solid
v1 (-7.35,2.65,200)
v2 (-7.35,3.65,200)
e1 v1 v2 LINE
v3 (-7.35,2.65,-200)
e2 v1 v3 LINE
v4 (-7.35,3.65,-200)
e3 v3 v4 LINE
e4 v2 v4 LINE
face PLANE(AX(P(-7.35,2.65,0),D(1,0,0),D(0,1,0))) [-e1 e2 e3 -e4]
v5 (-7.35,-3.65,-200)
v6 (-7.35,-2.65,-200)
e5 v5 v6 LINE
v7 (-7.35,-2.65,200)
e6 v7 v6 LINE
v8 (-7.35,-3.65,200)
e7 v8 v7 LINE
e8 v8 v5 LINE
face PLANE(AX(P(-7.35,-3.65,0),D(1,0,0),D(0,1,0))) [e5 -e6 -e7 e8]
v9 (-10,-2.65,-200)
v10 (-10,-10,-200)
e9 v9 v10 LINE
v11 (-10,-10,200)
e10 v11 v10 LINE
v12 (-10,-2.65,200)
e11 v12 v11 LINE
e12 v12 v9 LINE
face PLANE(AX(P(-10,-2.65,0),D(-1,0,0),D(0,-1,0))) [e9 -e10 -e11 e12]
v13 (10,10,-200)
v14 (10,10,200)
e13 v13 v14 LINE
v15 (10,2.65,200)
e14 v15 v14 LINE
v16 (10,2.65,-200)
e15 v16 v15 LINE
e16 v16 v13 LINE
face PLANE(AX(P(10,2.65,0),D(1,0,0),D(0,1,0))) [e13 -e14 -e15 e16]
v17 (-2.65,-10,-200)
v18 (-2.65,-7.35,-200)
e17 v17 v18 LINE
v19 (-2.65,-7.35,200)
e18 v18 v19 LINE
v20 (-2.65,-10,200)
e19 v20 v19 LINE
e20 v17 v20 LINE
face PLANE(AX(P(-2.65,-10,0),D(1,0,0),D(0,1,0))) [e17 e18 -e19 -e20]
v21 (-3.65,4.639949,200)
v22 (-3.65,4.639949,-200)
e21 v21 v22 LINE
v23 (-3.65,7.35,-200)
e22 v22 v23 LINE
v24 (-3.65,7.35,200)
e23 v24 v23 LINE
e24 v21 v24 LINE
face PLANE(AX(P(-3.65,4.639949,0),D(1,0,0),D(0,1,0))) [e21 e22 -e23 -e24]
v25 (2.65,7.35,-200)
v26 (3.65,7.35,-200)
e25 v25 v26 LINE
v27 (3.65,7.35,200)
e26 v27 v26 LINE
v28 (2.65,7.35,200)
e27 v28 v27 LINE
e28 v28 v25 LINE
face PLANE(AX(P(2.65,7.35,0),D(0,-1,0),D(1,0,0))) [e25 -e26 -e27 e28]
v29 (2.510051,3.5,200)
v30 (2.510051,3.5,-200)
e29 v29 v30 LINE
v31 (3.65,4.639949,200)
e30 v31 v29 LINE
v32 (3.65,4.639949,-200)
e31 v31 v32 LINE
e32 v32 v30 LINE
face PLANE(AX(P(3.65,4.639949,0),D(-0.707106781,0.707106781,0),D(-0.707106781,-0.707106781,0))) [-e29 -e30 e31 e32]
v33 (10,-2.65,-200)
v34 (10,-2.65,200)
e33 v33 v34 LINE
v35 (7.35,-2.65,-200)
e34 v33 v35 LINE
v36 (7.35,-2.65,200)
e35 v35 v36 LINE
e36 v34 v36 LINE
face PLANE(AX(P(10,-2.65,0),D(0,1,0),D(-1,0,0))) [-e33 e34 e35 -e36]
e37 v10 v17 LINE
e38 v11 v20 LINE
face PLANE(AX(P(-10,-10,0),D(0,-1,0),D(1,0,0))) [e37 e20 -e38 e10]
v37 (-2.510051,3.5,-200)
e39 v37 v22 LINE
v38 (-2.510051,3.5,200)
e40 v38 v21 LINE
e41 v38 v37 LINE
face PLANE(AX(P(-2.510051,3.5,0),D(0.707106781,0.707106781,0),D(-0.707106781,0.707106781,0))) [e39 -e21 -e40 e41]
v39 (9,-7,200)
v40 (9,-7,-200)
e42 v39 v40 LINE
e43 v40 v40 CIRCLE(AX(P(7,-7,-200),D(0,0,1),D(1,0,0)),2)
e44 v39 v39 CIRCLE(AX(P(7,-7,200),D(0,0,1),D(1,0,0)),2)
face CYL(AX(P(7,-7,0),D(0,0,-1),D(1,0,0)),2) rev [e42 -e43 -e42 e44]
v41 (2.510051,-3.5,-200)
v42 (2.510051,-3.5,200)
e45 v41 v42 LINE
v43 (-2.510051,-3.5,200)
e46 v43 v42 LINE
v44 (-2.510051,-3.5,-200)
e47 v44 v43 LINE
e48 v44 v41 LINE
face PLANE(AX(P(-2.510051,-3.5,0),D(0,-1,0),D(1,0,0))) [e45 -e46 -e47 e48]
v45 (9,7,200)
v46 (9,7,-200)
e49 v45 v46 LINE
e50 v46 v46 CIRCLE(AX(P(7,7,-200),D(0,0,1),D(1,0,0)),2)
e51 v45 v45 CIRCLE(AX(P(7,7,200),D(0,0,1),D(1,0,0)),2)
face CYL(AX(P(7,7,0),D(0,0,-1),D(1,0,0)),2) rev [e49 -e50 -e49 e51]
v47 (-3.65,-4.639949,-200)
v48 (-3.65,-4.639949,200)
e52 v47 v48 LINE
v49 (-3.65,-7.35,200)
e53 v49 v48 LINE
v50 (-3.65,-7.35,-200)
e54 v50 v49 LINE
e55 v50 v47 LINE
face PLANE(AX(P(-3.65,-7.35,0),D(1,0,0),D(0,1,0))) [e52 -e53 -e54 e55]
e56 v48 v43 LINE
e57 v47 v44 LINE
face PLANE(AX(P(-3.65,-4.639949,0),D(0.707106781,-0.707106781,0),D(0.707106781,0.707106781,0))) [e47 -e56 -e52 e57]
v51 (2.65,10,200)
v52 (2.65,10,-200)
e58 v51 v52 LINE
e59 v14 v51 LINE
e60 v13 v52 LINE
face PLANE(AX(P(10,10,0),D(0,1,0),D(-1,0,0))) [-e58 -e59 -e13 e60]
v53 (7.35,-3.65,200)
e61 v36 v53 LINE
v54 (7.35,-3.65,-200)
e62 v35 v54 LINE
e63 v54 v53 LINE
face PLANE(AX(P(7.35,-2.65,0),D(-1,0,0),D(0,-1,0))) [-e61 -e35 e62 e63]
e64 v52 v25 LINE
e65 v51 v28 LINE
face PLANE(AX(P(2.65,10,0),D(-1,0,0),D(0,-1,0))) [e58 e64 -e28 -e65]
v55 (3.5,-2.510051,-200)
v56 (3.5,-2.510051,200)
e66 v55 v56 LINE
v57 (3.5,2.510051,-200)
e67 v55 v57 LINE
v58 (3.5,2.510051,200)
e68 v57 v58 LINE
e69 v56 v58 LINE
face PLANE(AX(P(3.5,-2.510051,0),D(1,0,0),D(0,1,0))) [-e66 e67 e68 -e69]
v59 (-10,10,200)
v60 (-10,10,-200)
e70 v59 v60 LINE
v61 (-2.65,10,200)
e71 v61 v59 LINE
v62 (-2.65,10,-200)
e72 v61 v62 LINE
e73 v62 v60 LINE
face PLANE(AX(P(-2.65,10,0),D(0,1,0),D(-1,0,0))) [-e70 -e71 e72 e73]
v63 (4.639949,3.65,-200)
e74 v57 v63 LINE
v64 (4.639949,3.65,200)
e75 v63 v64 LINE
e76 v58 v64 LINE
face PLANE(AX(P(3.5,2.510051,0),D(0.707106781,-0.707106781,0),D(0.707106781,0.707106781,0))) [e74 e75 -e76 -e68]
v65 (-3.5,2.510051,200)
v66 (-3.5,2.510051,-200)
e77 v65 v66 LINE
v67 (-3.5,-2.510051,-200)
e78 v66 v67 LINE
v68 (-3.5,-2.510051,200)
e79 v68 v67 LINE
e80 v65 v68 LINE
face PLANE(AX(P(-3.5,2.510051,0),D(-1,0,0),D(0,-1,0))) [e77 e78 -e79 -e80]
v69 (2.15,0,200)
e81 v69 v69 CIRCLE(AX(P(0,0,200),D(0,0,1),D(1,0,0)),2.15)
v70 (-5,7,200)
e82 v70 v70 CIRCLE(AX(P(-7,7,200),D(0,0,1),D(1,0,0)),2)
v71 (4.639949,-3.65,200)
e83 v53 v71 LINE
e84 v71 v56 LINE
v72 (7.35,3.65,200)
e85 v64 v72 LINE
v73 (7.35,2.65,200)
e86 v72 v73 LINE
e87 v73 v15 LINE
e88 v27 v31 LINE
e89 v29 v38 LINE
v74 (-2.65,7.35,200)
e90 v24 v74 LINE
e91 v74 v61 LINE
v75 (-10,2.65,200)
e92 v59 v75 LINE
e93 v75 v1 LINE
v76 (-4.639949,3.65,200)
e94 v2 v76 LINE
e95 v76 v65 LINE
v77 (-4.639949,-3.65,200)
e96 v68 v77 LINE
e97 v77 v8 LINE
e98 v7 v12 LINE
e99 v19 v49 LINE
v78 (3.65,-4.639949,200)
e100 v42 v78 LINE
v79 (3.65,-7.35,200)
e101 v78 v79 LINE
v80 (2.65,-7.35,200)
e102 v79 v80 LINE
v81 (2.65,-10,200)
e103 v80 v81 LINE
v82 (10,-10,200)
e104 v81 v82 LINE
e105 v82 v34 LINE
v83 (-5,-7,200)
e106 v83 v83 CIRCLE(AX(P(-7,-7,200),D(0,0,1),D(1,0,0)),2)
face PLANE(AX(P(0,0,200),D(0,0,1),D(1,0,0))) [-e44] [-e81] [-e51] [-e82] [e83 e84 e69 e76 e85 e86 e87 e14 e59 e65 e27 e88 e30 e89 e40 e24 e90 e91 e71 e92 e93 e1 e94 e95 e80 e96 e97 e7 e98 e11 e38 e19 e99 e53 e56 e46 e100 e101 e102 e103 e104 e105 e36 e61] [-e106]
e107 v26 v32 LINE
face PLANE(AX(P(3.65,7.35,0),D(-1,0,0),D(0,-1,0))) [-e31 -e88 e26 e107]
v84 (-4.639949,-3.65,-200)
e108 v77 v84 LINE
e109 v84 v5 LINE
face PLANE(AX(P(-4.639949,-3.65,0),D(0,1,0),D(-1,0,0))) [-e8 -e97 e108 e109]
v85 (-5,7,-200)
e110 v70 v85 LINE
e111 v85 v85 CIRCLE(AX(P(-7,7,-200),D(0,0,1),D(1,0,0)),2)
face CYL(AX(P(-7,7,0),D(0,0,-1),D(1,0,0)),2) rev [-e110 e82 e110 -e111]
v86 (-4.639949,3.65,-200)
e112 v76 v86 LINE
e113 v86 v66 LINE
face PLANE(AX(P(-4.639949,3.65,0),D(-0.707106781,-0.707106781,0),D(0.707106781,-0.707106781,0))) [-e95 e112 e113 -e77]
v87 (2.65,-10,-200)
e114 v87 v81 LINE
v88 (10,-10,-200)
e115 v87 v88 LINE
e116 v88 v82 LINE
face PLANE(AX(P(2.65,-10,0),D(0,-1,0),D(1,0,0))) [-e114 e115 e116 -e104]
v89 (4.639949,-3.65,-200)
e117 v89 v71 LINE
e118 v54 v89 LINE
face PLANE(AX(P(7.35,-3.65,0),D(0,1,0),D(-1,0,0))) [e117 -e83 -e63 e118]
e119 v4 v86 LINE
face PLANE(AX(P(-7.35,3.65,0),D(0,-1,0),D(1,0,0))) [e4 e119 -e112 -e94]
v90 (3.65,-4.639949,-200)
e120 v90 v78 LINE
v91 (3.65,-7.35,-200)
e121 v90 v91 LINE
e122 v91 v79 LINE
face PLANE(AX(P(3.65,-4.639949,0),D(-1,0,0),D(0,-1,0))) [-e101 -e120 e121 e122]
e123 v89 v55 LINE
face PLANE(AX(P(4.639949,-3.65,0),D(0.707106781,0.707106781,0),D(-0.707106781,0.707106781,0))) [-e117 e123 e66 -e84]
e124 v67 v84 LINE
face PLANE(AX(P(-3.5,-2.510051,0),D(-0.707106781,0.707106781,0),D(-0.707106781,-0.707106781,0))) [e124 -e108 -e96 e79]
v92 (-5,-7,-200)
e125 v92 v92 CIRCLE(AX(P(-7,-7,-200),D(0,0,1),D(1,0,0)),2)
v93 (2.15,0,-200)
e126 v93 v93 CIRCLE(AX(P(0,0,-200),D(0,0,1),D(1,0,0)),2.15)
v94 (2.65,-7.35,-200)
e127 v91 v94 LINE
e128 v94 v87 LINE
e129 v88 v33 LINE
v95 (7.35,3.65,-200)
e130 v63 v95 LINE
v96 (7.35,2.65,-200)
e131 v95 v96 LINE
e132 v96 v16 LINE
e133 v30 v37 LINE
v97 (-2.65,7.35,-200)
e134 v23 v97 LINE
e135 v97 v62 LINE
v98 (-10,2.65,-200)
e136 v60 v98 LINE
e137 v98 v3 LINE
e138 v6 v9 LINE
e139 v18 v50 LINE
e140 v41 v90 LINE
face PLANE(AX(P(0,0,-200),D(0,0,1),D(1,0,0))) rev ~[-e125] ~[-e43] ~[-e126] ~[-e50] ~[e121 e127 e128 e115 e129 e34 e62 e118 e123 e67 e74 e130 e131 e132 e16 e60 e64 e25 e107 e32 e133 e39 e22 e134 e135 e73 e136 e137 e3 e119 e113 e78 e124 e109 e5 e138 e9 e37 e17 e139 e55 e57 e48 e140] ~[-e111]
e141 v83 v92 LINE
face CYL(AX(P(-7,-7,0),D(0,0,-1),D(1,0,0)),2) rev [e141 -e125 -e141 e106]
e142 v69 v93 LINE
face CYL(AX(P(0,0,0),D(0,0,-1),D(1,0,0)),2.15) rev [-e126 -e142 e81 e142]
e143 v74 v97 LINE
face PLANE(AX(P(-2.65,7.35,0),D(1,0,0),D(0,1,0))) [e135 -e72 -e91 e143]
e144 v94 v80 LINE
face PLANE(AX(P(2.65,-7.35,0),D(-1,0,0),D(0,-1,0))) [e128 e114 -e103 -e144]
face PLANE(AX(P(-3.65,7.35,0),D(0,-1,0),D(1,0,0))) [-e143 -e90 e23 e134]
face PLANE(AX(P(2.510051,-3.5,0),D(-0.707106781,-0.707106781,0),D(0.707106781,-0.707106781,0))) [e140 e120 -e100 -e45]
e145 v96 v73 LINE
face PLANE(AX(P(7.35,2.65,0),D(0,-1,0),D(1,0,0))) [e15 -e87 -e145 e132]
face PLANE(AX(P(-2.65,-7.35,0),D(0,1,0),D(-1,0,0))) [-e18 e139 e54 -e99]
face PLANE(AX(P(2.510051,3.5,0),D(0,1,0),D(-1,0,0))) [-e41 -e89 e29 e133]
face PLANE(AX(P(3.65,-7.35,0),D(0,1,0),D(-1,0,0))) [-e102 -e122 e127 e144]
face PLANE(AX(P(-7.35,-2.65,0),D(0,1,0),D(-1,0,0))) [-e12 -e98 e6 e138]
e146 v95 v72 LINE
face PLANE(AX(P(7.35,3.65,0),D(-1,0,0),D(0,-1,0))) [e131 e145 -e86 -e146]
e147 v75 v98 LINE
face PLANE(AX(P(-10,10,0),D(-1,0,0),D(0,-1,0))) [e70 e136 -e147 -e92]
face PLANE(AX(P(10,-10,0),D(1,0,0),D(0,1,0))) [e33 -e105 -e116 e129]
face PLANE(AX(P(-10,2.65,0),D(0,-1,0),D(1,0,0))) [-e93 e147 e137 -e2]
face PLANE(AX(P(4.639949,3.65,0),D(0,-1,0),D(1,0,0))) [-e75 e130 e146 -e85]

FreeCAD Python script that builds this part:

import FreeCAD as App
import Part
import Sketcher
Q = App.Units.Quantity


def add_polygon(sketch, points):
    """Adds a closed chain of lines whose ends are joined by coincident constraints."""
    first, n = sketch.GeometryCount, len(points)
    for a, b in zip(points, points[1:] + points[:1]):
        sketch.addGeometry(Part.LineSegment(App.Vector(*a, 0), App.Vector(*b, 0)), False)
    for i in range(n):
        sketch.addConstraint(Sketcher.Constraint("Coincident", first + i, 2, first + (i + 1) % n, 1))

doc = App.newDocument("Part")
params = doc.addObject("Spreadsheet::Sheet", "Params")
for row, (alias, value) in enumerate([
    ("sketch1_diameter", "4 mm"),
    ("sketch1_diameter2", "4.3 mm"),
    ("sketch1_width", "1 mm"),
    ("sketch1_width2", "7.35 mm"),
    ("sketch1_width3", "2.65 mm"),
    ("pad1_length", "400 mm"),
], start=1):
    params.set(f"A{row}", alias)
    params.set(f"B{row}", "=" + value)
    params.setAlias(f"B{row}", alias)

body = doc.addObject("PartDesign::Body", "Body")

# Sketch on XY plane
sketch1 = body.newObject("Sketcher::SketchObject", "Sketch")
sketch1.AttachmentSupport = (doc.getObject("XY_Plane"), [""])
sketch1.MapMode = "FlatFace"
add_polygon(sketch1, [(-10, -10), (-2.6, -10), (-2.6, -7.3), (-3.6, -7.3), (-3.6, -4.6), (-2.5, -3.5), (2.5, -3.5), (3.6, -4.6), (3.6, -7.3), (2.6, -7.3), (2.6, -10), (10, -10), (10, -2.6), (7.3, -2.6), (7.3, -3.6), (4.6, -3.6), (3.5, -2.5), (3.5, 2.5), (4.6, 3.6), (7.3, 3.6), (7.3, 2.6), (10, 2.6), (10, 10), (2.6, 10), (2.6, 7.3), (3.6, 7.3), (3.6, 4.6), (2.5, 3.5), (-2.5, 3.5), (-3.6, 4.6), (-3.6, 7.3), (-2.6, 7.3), (-2.6, 10), (-10, 10), (-10, 2.6), (-7.3, 2.6), (-7.3, 3.6), (-4.6, 3.6), (-3.5, 2.5), (-3.5, -2.5), (-4.6, -3.6), (-7.3, -3.6), (-7.3, -2.6), (-10, -2.6)])  # lines 0-43
sketch1.addGeometry(Part.Circle(App.Vector(-7, -7, 0), App.Vector(0, 0, 1), 2), False)  # 44
sketch1.addGeometry(Part.Circle(App.Vector(7, -7, 0), App.Vector(0, 0, 1), 2), False)  # 45
sketch1.addGeometry(Part.Circle(App.Vector(-7, 7, 0), App.Vector(0, 0, 1), 2), False)  # 46
sketch1.addGeometry(Part.Circle(App.Vector(0, 0, 0), App.Vector(0, 0, 1), 2.1), False)  # 47
sketch1.addGeometry(Part.Circle(App.Vector(7, 7, 0), App.Vector(0, 0, 1), 2), False)  # 48
sketch1.addConstraint(Sketcher.Constraint("Horizontal", 0))
sketch1.addConstraint(Sketcher.Constraint("Vertical", 1))
sketch1.addConstraint(Sketcher.Constraint("Horizontal", 2))
sketch1.addConstraint(Sketcher.Constraint("Vertical", 3))
sketch1.addConstraint(Sketcher.Constraint("Horizontal", 5))
sketch1.addConstraint(Sketcher.Constraint("Vertical", 7))
sketch1.addConstraint(Sketcher.Constraint("Horizontal", 8))
sketch1.addConstraint(Sketcher.Constraint("Vertical", 9))
sketch1.addConstraint(Sketcher.Constraint("Horizontal", 10))
sketch1.addConstraint(Sketcher.Constraint("Vertical", 11))
sketch1.addConstraint(Sketcher.Constraint("Horizontal", 12))
sketch1.addConstraint(Sketcher.Constraint("Vertical", 13))
sketch1.addConstraint(Sketcher.Constraint("Horizontal", 14))
sketch1.addConstraint(Sketcher.Constraint("Vertical", 16))
sketch1.addConstraint(Sketcher.Constraint("Horizontal", 18))
sketch1.addConstraint(Sketcher.Constraint("Vertical", 19))
sketch1.addConstraint(Sketcher.Constraint("Horizontal", 20))
sketch1.addConstraint(Sketcher.Constraint("Vertical", 21))
sketch1.addConstraint(Sketcher.Constraint("Horizontal", 22))
sketch1.addConstraint(Sketcher.Constraint("Vertical", 23))
sketch1.addConstraint(Sketcher.Constraint("Horizontal", 24))
sketch1.addConstraint(Sketcher.Constraint("Vertical", 25))
sketch1.addConstraint(Sketcher.Constraint("Horizontal", 27))
sketch1.addConstraint(Sketcher.Constraint("Vertical", 29))
sketch1.addConstraint(Sketcher.Constraint("Horizontal", 30))
sketch1.addConstraint(Sketcher.Constraint("Vertical", 31))
sketch1.addConstraint(Sketcher.Constraint("Horizontal", 32))
sketch1.addConstraint(Sketcher.Constraint("Vertical", 33))
sketch1.addConstraint(Sketcher.Constraint("Horizontal", 34))
sketch1.addConstraint(Sketcher.Constraint("Vertical", 35))
sketch1.addConstraint(Sketcher.Constraint("Horizontal", 36))
sketch1.addConstraint(Sketcher.Constraint("Vertical", 38))
sketch1.addConstraint(Sketcher.Constraint("Horizontal", 40))
sketch1.addConstraint(Sketcher.Constraint("Vertical", 41))
sketch1.addConstraint(Sketcher.Constraint("Horizontal", 42))
sketch1.addConstraint(Sketcher.Constraint("Vertical", 43))
sketch1.addConstraint(Sketcher.Constraint("Coincident", 47, 3, -1, 1))
sketch1.addConstraint(Sketcher.Constraint("Equal", 44, 45))
sketch1.addConstraint(Sketcher.Constraint("Equal", 45, 46))
sketch1.addConstraint(Sketcher.Constraint("Equal", 46, 48))
sketch1.addConstraint(Sketcher.Constraint("Symmetric", 45, 3, 46, 3, -1, 1))
sketch1.addConstraint(Sketcher.Constraint("Symmetric", 44, 3, 48, 3, -1, 1))
sketch1.addConstraint(Sketcher.Constraint("Symmetric", 0, 2, 22, 2, -1, 1))
sketch1.addConstraint(Sketcher.Constraint("Symmetric", 2, 2, 24, 2, -1, 1))
sketch1.addConstraint(Sketcher.Constraint("Symmetric", 4, 2, 26, 2, -1, 1))
sketch1.addConstraint(Sketcher.Constraint("Symmetric", 6, 2, 28, 2, -1, 1))
sketch1.addConstraint(Sketcher.Constraint("Symmetric", 8, 2, 30, 2, -1, 1))
sketch1.addConstraint(Sketcher.Constraint("Symmetric", 10, 2, 32, 2, -1, 1))
sketch1.addConstraint(Sketcher.Constraint("Symmetric", 12, 2, 34, 2, -1, 1))
sketch1.addConstraint(Sketcher.Constraint("Symmetric", 14, 2, 36, 2, -1, 1))
sketch1.addConstraint(Sketcher.Constraint("Symmetric", 15, 2, 37, 2, -1, 1))
sketch1.addConstraint(Sketcher.Constraint("Symmetric", 17, 2, 39, 2, -1, 1))
sketch1.addConstraint(Sketcher.Constraint("Symmetric", 19, 2, 41, 2, -1, 1))
sketch1.addConstraint(Sketcher.Constraint("Symmetric", 44, 3, 45, 3, -2))
sketch1.addConstraint(Sketcher.Constraint("Symmetric", 3, 2, 6, 2, -2))
sketch1.addConstraint(Sketcher.Constraint("Symmetric", 1, 2, 8, 2, -2))
sketch1.addConstraint(Sketcher.Constraint("Symmetric", 21, 2, 32, 2, -2))
sketch1.addConstraint(Sketcher.Constraint("Symmetric", 19, 2, 34, 2, -2))
sketch1.addConstraint(Sketcher.Constraint("Symmetric", 17, 2, 36, 2, -2))
sketch1.addConstraint(Sketcher.Constraint("Perpendicular", 4, 6))
sketch1.addConstraint(Sketcher.Constraint("Parallel", 6, 15))
sketch1.addConstraint(Sketcher.Constraint("Perpendicular", 15, 17))
sketch1.addConstraint(Sketcher.Constraint("Parallel", 17, 26))
sketch1.addConstraint(Sketcher.Constraint("Perpendicular", 26, 28))
sketch1.addConstraint(Sketcher.Constraint("Perpendicular", 37, 39))
sketch1.addConstraint(Sketcher.Constraint("Horizontal", 16, 2, 37, 2))
sketch1.addConstraint(Sketcher.Constraint("Vertical", 33, 2, 42, 2))
sketch1.addConstraint(Sketcher.Constraint("Equal", 42, 1))
sketch1.addConstraint(Sketcher.Constraint("Equal", 40, 3))
sketch1.addConstraint(Sketcher.Constraint("Equal", 32, 11))
sketch1.addConstraint(Sketcher.Constraint("Equal", 30, 13))
sketch1.addConstraint(Sketcher.Constraint("Equal", 27, 16))
sketch1.addConstraint(Sketcher.Constraint("Equal", 6, 15))
sketch1.addConstraint(Sketcher.Constraint("Diameter", 44, Q("4 mm")))
sketch1.addConstraint(Sketcher.Constraint("Diameter", 47, Q("4.3 mm")))
sketch1.addConstraint(Sketcher.Constraint("DistanceX", 2, 2, 2, 1, Q("1 mm")))
sketch1.addConstraint(Sketcher.Constraint("DistanceX", 44, 3, -1, 1, Q("7 mm")))
sketch1.addConstraint(Sketcher.Constraint("DistanceY", 44, 3, -1, 1, Q("7 mm")))
sketch1.addConstraint(Sketcher.Constraint("DistanceY", 0, 2, -1, 1, Q("10 mm")))
sketch1.addConstraint(Sketcher.Constraint("DistanceX", 0, 1, 0, 2, Q("7.35 mm")))
sketch1.addConstraint(Sketcher.Constraint("DistanceX", 12, 2, 12, 1, Q("2.65 mm")))
sketch1.addConstraint(Sketcher.Constraint("DistanceY", 4, 2, -1, 1, Q("3.5 mm")))
sketch1.addConstraint(Sketcher.Constraint("DistanceX", 5, 1, 5, 2, Q("5.020101 mm")))
sketch1.setExpression("Constraints[117]", "Params.sketch1_diameter")
sketch1.setExpression("Constraints[118]", "Params.sketch1_diameter2")
sketch1.setExpression("Constraints[119]", "Params.sketch1_width")
sketch1.setExpression("Constraints[123]", "Params.sketch1_width2")
sketch1.setExpression("Constraints[124]", "Params.sketch1_width3")
pad1 = body.newObject("PartDesign::Pad", "Pad")
pad1.Profile = sketch1
pad1.setExpression("Length", "Params.pad1_length")
pad1.Midplane = True

doc.recompute()
